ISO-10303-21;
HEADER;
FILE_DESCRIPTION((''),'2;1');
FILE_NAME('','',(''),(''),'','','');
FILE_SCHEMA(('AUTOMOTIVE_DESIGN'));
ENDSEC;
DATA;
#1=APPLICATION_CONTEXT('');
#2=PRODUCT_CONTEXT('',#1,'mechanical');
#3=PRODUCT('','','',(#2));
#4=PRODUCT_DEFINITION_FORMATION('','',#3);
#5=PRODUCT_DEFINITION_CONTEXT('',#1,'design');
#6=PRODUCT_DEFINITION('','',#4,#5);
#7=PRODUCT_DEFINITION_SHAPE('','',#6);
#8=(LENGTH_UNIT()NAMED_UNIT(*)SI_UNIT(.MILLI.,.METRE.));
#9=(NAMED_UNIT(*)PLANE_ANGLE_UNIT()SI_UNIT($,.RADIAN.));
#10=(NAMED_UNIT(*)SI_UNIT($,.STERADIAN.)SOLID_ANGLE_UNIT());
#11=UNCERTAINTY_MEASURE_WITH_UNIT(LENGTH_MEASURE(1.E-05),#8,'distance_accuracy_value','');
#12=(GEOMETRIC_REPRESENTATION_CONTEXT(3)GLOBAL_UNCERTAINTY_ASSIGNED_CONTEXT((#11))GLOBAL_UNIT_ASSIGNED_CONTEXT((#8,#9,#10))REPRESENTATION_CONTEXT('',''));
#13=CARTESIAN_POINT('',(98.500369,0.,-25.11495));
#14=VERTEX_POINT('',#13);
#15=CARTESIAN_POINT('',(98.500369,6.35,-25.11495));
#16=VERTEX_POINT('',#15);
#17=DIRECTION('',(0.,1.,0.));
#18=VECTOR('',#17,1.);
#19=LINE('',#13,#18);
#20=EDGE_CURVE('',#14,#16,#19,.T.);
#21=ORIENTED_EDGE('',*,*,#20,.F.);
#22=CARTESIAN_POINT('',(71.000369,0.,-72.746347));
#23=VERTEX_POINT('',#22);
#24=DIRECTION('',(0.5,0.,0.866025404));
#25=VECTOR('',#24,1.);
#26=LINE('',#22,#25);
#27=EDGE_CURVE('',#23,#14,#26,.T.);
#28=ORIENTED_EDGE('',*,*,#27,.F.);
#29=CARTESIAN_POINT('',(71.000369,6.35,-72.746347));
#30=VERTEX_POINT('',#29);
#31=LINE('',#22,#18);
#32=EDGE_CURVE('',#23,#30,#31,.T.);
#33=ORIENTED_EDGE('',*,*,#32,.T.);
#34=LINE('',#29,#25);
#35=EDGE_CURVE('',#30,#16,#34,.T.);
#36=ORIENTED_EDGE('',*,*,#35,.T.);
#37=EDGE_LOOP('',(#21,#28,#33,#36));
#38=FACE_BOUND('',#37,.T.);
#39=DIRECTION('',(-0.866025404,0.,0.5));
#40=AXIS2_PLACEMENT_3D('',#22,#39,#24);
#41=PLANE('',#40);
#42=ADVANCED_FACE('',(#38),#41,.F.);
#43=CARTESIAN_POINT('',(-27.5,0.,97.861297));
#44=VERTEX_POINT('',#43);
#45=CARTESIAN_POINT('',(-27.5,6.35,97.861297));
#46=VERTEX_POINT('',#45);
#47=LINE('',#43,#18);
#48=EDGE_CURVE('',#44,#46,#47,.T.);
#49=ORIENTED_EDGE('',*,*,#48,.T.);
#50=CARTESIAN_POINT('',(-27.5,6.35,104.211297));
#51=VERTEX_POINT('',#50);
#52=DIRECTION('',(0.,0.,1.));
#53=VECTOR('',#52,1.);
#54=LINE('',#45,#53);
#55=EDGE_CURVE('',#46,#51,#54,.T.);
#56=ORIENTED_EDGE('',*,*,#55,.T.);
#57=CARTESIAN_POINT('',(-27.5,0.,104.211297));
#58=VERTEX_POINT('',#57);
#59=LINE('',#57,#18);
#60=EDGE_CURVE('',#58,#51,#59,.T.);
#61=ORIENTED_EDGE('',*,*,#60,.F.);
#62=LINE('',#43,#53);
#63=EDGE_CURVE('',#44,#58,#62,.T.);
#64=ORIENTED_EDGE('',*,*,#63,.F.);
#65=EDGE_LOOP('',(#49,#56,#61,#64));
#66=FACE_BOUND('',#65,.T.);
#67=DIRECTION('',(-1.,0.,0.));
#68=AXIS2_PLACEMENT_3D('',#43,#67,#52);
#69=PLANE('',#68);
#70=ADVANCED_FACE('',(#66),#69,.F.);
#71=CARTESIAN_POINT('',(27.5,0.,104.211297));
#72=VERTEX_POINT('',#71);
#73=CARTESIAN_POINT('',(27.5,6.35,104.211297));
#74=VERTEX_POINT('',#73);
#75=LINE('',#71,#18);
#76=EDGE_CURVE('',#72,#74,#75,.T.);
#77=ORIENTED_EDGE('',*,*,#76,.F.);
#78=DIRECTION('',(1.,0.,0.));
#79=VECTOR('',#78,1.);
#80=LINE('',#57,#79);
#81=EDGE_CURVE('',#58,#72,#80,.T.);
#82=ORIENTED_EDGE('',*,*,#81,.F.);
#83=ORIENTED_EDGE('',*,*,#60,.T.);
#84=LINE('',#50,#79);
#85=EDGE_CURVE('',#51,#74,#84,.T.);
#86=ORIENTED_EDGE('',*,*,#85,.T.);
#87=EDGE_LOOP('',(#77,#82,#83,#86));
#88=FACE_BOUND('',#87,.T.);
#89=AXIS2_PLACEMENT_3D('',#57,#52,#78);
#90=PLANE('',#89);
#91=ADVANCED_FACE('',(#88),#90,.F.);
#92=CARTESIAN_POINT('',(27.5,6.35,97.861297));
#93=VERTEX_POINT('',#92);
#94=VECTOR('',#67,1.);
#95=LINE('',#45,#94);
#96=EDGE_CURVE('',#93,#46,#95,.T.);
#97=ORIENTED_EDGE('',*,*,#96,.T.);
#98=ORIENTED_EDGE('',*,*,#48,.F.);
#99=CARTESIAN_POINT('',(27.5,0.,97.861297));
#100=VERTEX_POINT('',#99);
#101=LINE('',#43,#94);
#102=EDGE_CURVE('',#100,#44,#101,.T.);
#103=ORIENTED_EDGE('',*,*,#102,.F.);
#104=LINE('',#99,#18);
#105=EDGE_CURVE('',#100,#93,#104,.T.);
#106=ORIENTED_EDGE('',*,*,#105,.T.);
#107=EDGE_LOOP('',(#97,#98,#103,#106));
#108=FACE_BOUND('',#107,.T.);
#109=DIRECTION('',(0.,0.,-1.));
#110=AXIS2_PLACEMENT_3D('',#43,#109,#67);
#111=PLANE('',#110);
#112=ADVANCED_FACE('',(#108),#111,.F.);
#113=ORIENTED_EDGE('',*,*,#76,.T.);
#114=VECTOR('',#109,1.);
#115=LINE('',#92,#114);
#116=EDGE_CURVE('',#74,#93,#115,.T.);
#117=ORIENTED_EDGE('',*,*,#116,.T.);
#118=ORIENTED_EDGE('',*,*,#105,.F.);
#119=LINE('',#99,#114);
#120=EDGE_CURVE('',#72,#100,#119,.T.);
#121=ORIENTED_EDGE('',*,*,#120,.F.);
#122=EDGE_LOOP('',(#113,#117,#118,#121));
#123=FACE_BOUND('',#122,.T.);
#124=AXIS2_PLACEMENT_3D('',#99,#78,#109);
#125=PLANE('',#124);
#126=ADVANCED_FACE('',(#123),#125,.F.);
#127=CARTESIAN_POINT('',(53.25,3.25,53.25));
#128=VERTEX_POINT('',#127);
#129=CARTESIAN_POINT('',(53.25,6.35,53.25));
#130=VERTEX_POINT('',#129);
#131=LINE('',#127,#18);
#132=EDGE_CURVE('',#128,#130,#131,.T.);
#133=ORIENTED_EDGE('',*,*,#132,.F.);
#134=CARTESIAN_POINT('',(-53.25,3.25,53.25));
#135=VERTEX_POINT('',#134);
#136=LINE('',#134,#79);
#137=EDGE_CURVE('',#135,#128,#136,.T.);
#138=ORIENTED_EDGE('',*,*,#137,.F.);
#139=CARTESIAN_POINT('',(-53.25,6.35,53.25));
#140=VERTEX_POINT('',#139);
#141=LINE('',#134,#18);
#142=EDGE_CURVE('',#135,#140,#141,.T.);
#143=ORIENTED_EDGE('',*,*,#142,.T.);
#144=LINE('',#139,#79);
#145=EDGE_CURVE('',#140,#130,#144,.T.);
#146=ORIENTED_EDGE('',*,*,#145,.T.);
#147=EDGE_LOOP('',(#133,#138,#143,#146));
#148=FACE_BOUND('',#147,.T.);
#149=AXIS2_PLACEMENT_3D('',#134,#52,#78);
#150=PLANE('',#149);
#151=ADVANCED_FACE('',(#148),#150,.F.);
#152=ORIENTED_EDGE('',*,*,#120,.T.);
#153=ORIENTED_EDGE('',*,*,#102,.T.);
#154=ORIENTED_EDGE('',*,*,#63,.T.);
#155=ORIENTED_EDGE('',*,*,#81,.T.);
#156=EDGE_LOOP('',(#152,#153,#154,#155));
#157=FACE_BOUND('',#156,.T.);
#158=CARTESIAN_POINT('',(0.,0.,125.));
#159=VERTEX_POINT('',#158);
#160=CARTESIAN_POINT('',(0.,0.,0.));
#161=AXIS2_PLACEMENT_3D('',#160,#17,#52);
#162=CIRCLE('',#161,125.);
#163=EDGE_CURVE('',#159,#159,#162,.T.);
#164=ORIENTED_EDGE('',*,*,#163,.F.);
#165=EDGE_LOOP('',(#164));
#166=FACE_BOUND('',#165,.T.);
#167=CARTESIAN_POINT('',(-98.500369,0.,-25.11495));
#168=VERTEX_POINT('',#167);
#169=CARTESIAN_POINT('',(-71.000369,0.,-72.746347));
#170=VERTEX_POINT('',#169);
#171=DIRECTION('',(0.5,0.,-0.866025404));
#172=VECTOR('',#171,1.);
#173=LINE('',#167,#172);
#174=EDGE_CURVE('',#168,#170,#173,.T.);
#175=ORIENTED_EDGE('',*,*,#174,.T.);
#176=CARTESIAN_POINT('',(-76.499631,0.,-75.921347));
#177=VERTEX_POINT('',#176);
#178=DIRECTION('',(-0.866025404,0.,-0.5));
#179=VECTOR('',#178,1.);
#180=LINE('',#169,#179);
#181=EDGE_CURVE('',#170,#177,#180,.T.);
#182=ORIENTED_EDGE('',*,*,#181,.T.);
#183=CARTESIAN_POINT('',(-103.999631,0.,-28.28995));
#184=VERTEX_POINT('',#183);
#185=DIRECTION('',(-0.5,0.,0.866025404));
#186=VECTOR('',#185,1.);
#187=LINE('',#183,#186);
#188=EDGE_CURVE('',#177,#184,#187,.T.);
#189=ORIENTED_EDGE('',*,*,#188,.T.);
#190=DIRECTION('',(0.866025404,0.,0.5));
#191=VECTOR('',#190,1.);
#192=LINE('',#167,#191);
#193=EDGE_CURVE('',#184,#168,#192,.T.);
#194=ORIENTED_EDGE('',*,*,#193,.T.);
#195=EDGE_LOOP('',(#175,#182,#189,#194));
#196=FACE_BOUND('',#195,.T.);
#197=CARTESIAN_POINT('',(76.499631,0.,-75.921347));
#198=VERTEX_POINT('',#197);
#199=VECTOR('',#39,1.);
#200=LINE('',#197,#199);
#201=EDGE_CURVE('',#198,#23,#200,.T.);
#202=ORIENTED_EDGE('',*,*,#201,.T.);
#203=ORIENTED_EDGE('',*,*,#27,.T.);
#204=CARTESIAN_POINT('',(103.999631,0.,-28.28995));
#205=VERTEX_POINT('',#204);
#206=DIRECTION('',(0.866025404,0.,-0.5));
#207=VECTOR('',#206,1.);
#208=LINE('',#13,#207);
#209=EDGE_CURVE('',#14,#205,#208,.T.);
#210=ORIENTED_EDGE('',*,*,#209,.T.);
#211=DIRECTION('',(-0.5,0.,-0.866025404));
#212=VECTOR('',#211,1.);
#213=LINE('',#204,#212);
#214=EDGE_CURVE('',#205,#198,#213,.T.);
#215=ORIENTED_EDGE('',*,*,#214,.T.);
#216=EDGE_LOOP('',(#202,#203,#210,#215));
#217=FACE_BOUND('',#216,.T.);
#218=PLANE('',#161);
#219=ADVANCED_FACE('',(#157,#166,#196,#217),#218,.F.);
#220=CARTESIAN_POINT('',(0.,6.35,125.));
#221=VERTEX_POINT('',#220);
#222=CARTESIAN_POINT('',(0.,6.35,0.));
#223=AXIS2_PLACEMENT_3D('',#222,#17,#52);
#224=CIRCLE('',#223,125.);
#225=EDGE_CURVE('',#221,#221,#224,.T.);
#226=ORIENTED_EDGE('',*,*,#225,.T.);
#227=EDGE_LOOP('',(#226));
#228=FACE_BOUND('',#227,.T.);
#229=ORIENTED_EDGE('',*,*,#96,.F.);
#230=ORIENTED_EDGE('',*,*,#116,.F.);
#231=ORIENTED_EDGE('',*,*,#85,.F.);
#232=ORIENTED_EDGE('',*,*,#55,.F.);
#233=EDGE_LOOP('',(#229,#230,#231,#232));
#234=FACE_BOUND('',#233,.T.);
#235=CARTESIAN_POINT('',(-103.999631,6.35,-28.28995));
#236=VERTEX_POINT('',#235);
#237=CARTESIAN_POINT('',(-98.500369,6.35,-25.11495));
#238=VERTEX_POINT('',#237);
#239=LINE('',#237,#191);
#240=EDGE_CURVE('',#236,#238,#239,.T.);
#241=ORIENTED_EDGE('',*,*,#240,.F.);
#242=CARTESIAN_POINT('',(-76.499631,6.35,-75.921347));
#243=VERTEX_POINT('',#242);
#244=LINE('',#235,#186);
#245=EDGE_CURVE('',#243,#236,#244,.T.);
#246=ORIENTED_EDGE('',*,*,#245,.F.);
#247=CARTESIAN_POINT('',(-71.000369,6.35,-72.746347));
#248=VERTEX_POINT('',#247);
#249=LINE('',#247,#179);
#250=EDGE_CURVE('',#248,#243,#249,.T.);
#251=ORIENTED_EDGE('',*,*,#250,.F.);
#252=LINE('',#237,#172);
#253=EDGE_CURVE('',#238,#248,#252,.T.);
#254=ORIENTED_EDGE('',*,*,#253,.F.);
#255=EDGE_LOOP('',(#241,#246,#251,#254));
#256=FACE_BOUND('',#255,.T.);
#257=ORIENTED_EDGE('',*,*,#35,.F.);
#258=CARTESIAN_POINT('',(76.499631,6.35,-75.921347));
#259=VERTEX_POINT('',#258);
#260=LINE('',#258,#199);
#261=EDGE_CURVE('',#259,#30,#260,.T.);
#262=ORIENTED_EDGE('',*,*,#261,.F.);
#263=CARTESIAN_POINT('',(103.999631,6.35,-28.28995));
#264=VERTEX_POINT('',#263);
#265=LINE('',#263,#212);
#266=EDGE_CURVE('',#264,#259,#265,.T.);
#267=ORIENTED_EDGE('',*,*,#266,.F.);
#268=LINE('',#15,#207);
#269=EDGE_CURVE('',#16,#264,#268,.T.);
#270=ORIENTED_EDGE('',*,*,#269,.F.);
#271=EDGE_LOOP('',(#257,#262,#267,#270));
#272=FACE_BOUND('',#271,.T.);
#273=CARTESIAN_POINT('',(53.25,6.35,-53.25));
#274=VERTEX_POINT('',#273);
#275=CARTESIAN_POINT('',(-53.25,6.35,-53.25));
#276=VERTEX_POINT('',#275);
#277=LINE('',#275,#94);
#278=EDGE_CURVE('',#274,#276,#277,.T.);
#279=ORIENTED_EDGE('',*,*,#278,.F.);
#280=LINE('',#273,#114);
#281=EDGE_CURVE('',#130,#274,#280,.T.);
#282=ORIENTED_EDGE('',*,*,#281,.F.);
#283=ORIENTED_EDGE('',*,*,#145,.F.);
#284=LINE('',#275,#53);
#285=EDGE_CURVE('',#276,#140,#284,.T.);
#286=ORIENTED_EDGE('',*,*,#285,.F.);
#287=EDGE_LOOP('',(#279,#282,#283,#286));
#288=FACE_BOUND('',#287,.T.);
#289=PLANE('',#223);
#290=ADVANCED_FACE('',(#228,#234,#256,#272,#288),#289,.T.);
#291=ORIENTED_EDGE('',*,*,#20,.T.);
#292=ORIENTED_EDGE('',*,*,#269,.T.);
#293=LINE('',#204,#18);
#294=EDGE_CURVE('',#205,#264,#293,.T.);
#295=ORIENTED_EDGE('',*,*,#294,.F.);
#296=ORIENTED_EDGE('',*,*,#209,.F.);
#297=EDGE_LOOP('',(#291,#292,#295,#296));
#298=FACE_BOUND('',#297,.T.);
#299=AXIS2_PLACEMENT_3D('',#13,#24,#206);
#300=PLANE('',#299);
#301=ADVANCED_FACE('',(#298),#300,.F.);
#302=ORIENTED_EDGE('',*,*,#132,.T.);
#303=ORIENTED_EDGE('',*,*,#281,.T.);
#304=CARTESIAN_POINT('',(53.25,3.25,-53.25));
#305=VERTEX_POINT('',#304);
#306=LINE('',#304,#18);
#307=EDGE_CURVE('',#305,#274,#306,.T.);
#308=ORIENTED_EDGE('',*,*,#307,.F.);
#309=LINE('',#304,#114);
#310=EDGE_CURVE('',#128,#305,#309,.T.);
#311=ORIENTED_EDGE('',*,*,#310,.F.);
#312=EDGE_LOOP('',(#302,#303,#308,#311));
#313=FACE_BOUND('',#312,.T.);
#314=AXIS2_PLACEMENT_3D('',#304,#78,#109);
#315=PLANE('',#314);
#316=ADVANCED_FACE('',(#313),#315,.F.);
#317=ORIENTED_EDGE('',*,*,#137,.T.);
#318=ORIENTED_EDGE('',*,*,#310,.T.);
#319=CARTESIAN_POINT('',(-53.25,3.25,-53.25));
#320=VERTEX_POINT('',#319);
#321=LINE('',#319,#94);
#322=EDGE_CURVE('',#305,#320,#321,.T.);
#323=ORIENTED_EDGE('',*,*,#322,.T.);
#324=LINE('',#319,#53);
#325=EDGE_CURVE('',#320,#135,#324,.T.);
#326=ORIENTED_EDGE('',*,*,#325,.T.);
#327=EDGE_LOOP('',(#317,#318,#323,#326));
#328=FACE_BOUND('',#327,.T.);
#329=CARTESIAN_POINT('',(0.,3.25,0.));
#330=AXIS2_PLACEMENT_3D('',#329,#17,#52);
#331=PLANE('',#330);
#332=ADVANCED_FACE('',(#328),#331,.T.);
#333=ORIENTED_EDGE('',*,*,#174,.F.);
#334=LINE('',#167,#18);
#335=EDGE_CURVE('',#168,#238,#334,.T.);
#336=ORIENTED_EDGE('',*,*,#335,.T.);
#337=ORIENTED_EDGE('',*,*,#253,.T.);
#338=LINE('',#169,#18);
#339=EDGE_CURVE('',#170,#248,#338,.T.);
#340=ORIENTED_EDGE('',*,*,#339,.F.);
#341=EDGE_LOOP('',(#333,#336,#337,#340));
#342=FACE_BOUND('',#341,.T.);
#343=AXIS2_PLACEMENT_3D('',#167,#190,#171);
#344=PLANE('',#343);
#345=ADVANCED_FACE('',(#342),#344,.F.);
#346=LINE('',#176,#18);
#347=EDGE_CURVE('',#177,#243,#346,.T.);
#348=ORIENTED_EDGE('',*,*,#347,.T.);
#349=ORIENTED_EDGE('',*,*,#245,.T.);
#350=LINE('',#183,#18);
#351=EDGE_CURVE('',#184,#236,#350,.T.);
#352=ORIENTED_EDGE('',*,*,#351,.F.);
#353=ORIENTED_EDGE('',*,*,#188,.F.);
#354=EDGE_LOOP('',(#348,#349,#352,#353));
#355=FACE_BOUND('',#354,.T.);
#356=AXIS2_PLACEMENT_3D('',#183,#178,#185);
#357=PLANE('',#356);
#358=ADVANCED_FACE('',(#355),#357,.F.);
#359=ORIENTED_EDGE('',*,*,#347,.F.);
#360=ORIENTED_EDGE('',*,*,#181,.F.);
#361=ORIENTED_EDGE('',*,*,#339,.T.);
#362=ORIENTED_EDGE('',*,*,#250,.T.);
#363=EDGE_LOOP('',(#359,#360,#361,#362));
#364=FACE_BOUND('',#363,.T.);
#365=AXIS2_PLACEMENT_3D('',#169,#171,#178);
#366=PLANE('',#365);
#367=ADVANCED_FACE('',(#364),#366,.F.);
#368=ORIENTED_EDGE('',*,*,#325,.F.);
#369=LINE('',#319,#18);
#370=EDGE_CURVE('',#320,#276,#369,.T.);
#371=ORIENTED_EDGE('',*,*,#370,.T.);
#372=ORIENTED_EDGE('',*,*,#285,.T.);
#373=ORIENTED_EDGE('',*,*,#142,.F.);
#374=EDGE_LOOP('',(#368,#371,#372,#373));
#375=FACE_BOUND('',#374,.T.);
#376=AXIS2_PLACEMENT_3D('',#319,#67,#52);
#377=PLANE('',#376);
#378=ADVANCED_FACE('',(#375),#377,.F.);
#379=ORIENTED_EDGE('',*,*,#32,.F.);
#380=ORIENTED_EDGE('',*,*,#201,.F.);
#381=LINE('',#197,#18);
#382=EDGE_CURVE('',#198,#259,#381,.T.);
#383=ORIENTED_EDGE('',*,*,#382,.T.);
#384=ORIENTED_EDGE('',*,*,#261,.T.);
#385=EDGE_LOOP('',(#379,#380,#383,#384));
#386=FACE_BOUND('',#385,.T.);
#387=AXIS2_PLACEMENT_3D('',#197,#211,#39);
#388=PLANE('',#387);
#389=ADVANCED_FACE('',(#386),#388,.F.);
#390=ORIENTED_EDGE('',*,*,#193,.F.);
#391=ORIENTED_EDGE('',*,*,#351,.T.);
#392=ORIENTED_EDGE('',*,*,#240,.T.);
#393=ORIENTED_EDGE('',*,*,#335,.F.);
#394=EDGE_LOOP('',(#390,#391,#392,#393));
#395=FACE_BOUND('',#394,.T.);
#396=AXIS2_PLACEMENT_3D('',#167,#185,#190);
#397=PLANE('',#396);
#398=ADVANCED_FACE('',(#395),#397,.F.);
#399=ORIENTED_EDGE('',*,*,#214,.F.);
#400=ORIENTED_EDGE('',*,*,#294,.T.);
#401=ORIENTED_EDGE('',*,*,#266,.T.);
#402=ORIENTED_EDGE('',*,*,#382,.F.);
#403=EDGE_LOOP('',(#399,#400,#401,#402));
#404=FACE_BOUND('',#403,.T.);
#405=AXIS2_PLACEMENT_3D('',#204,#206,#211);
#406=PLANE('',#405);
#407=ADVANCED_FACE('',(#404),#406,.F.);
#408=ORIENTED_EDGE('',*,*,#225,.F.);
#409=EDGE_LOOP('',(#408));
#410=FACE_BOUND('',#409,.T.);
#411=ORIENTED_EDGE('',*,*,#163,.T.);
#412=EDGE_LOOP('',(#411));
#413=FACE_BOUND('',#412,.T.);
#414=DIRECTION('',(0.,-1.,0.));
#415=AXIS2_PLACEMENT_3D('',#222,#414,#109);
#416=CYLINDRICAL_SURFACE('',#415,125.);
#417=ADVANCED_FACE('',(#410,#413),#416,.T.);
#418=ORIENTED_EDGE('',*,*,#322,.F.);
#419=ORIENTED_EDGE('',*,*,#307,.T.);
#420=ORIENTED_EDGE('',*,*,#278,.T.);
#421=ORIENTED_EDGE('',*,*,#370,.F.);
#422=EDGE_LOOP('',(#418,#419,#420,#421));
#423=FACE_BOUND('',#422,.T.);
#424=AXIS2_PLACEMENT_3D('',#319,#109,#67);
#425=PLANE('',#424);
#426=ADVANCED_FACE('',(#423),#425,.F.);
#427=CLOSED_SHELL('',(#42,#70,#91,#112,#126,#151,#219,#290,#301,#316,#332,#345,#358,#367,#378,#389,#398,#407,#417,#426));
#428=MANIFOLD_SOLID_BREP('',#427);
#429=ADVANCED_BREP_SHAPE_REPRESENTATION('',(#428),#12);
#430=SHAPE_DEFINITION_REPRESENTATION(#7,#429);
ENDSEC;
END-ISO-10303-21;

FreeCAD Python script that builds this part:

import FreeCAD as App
import Part
import Sketcher
Q = App.Units.Quantity


def add_polygon(sketch, points):
    """Adds a closed chain of lines whose ends are joined by coincident constraints."""
    first, n = sketch.GeometryCount, len(points)
    for a, b in zip(points, points[1:] + points[:1]):
        sketch.addGeometry(Part.LineSegment(App.Vector(*a, 0), App.Vector(*b, 0)), False)
    for i in range(n):
        sketch.addConstraint(Sketcher.Constraint("Coincident", first + i, 2, first + (i + 1) % n, 1))

doc = App.newDocument("Part")
body = doc.addObject("PartDesign::Body", "Body")

# Sketch on XZ plane
sketch1 = body.newObject("Sketcher::SketchObject", "Sketch")
sketch1.AttachmentSupport = (doc.getObject("XZ_Plane"), [""])
sketch1.MapMode = "FlatFace"
sketch1.addGeometry(Part.Circle(App.Vector(0, 0, 0), App.Vector(0, 0, 1), 125), False)
sketch1.addConstraint([
    Sketcher.Constraint("Coincident", 0, 3, -1, 1),
    Sketcher.Constraint("Diameter", 0, 250.0),
])
pad1 = body.newObject("PartDesign::Pad", "Pad")
pad1.Profile = sketch1
pad1.Length = 6.35
pad1.Reversed = True

# Sketch on XZ plane
sketch2 = body.newObject("Sketcher::SketchObject", "Sketch001")
sketch2.AttachmentSupport = (doc.getObject("XZ_Plane"), [""])
sketch2.MapMode = "FlatFace"
sketch2.AttachmentOffset = App.Placement(App.Vector(0, 0, -6.35), App.Rotation())
add_polygon(sketch2, [(-104, -28), (-99, -25), (-71, -73), (-76, -76)])  # lines 0-3
add_polygon(sketch2, [(71, -73), (99, -25), (104, -28), (76, -76)])  # lines 4-7
add_polygon(sketch2, [(-28, 98), (-28, 104), (28, 104), (28, 98)])  # lines 8-11
sketch2.addConstraint([
    Sketcher.Constraint("Vertical", 8),
    Sketcher.Constraint("Horizontal", 9),
    Sketcher.Constraint("Vertical", 10),
    Sketcher.Constraint("Horizontal", 11),
    Sketcher.Constraint("Symmetric", 0, 2, 4, 2, -2),
    Sketcher.Constraint("Symmetric", 3, 2, 5, 2, -2),
    Sketcher.Constraint("Symmetric", 2, 2, 6, 2, -2),
    Sketcher.Constraint("Symmetric", 1, 2, 7, 2, -2),
    Sketcher.Constraint("Perpendicular", 0, 1),
    Sketcher.Constraint("Perpendicular", 1, 2),
    Sketcher.Constraint("Perpendicular", 2, 3),
    Sketcher.Constraint("DistanceX", 9, 1, 9, 2, 55.0),
    Sketcher.Constraint("Angle", 0, Q("30 deg")),
    Sketcher.Constraint("Distance", 1, 55.0),
    Sketcher.Constraint("DistanceX", 2, 2, 4, 2, 175.0),
    Sketcher.Constraint("DistanceY", 8, 1, 8, 2, 6.35),
    Sketcher.Constraint("DistanceX", 8, 2, -1, 1, 27.5),
    Sketcher.Constraint("Distance", 0, 6.35),
    Sketcher.Constraint("DistanceY", 0, 2, -1, 1, 25.11495),
    Sketcher.Constraint("DistanceY", -1, 1, 8, 2, 104.211297),
])
pocket1 = body.newObject("PartDesign::Pocket", "Pocket")
pocket1.Profile = sketch2
pocket1.Type = "ThroughAll"
pocket1.Reversed = True

# Sketch on XZ plane
sketch3 = body.newObject("Sketcher::SketchObject", "Sketch002")
sketch3.AttachmentSupport = (doc.getObject("XZ_Plane"), [""])
sketch3.MapMode = "FlatFace"
sketch3.AttachmentOffset = App.Placement(App.Vector(0, 0, -6.35), App.Rotation())
add_polygon(sketch3, [(-53, -53), (-53, 53), (53, 53), (53, -53)])  # lines 0-3
sketch3.addConstraint([
    Sketcher.Constraint("Vertical", 0),
    Sketcher.Constraint("Horizontal", 1),
    Sketcher.Constraint("Vertical", 2),
    Sketcher.Constraint("Horizontal", 3),
    Sketcher.Constraint("Symmetric", 0, 2, 2, 2, -1, 1),
    Sketcher.Constraint("Equal", 3, 0),
    Sketcher.Constraint("DistanceX", 1, 1, 1, 2, 106.5),
])
pocket2 = body.newObject("PartDesign::Pocket", "Pocket001")
pocket2.Profile = sketch3
pocket2.Length = 3.1
pocket2.Reversed = True

doc.recompute()
